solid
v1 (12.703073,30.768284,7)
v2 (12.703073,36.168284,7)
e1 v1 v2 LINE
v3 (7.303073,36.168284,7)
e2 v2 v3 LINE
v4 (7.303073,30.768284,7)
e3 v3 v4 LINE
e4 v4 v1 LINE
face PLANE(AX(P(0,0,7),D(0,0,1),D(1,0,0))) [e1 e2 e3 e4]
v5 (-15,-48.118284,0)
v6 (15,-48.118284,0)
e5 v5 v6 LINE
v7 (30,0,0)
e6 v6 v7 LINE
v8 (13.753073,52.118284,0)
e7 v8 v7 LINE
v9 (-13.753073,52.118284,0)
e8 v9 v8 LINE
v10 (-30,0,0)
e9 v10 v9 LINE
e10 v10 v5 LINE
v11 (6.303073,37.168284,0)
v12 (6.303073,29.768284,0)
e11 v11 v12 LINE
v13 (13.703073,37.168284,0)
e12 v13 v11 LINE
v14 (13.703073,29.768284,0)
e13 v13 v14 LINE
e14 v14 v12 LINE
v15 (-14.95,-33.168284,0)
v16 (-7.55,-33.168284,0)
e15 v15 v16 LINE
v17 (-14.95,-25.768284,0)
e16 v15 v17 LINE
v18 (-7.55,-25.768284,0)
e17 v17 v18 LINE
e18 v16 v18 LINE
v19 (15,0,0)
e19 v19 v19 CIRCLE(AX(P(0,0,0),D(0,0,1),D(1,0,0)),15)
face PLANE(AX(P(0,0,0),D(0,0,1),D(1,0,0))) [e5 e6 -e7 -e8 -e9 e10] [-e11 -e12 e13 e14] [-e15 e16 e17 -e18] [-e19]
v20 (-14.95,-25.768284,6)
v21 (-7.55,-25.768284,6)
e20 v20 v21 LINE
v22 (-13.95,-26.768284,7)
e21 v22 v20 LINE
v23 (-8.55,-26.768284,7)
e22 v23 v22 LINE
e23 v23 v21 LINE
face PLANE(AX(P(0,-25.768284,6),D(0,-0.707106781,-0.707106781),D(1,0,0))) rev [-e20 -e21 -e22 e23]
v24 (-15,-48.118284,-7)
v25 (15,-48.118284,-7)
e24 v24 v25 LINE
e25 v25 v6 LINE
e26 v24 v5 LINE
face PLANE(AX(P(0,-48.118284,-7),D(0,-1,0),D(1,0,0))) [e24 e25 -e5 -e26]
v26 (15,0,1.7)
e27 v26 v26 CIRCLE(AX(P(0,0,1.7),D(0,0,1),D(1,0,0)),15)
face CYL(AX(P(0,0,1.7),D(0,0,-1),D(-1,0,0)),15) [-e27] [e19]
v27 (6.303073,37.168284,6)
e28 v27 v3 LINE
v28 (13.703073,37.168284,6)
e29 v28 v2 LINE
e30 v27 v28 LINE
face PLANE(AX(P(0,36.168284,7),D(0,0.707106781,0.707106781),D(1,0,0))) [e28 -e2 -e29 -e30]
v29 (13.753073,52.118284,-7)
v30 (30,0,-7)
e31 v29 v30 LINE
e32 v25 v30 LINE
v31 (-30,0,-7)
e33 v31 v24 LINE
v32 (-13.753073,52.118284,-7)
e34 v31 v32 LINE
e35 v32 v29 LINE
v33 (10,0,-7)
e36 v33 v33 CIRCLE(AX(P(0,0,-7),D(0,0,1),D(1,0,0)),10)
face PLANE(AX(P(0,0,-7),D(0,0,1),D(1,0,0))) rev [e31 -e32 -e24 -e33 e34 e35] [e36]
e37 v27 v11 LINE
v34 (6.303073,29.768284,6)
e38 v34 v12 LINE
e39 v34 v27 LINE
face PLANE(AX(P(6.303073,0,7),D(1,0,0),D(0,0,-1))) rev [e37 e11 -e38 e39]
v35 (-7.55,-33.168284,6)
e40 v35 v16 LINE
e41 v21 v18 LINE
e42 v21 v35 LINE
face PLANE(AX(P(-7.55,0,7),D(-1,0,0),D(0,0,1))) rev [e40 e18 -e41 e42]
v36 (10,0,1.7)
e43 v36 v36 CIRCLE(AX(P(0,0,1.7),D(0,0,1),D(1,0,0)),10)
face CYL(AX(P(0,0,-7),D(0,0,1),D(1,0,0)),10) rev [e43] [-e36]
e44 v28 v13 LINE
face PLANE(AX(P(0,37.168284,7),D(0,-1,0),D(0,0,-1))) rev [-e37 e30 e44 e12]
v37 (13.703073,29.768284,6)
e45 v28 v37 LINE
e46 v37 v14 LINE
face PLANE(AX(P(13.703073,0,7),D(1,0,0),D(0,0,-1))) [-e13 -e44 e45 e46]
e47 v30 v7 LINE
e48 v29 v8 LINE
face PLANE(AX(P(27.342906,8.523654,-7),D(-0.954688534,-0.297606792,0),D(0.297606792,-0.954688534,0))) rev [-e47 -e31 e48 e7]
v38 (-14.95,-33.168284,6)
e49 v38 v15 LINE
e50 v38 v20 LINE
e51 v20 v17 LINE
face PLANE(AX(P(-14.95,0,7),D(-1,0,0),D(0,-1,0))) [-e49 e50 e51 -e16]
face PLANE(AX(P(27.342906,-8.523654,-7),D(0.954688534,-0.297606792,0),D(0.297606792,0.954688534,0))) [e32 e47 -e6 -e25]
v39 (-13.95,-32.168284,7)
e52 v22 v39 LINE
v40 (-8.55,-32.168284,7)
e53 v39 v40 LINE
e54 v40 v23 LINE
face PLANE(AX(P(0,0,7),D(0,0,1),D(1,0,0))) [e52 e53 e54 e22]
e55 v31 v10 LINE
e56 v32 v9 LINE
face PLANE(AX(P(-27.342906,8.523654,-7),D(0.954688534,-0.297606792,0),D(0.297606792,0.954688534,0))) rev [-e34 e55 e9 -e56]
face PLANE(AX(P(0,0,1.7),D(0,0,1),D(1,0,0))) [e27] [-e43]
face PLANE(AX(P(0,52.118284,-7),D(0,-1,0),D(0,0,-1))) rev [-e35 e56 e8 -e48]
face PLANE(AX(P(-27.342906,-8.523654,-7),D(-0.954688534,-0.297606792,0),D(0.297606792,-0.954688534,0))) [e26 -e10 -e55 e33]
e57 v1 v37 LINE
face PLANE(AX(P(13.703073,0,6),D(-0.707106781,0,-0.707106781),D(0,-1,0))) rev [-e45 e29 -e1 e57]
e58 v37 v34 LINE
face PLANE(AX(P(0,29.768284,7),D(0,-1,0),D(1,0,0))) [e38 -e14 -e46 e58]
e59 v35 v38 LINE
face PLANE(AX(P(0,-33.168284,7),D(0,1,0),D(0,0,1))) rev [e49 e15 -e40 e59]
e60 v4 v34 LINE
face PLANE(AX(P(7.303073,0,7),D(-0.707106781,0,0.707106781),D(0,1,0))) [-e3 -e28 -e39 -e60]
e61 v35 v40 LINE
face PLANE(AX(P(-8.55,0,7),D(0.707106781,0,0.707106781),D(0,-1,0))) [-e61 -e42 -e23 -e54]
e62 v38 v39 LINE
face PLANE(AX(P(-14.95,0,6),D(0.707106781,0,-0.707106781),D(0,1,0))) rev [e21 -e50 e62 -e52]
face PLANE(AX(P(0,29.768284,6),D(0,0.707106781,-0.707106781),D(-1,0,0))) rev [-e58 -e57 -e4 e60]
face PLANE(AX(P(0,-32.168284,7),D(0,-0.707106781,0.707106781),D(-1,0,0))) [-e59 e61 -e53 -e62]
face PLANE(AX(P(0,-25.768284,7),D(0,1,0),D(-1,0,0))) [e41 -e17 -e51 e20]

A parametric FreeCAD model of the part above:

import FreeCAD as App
import Part
import Sketcher
Q = App.Units.Quantity


def edges_at(feature, points):
    """Names of the edges that pass closest to the given points."""
    edges = feature.Shape.Edges
    near = lambda p: min(range(len(edges)), key=lambda i: edges[i].distToShape(Part.Vertex(*p))[0])
    return sorted({f"Edge{near(p) + 1}" for p in points})

doc = App.newDocument("Part")
body = doc.addObject("PartDesign::Body", "Body")

# Sketch on XY plane
sketch1 = doc.addObject("Sketcher::SketchObject", "Sketch")
body.addObject(sketch1)
sketch1.AttachmentSupport = (doc.XY_Plane, [""])
sketch1.MapMode = "FlatFace"
sketch1.addGeometry(Part.LineSegment(App.Vector(-30, 0, 0), App.Vector(-15, -48, 0)), False)
sketch1.addGeometry(Part.LineSegment(App.Vector(-15, -48, 0), App.Vector(15, -48, 0)), False)
sketch1.addGeometry(Part.LineSegment(App.Vector(15, -48, 0), App.Vector(30, 0, 0)), False)
sketch1.addGeometry(Part.LineSegment(App.Vector(30, 0, 0), App.Vector(14, 52, 0)), False)
sketch1.addGeometry(Part.LineSegment(App.Vector(14, 52, 0), App.Vector(-14, 52, 0)), False)
sketch1.addGeometry(Part.LineSegment(App.Vector(-14, 52, 0), App.Vector(-30, 0, 0)), False)
sketch1.addGeometry(Part.Circle(App.Vector(0, 0, 0), App.Vector(0, 0, 1), 10), False)
sketch1.addConstraint(Sketcher.Constraint("Coincident", 0, 2, 1, 1))
sketch1.addConstraint(Sketcher.Constraint("Coincident", 1, 2, 2, 1))
sketch1.addConstraint(Sketcher.Constraint("Coincident", 2, 2, 3, 1))
sketch1.addConstraint(Sketcher.Constraint("Coincident", 3, 2, 4, 1))
sketch1.addConstraint(Sketcher.Constraint("Coincident", 4, 2, 5, 1))
sketch1.addConstraint(Sketcher.Constraint("Coincident", 5, 2, 0, 1))
sketch1.addConstraint(Sketcher.Constraint("Horizontal", 1))
sketch1.addConstraint(Sketcher.Constraint("Horizontal", 4))
sketch1.addConstraint(Sketcher.Constraint("Coincident", 6, 3, -1, 1))
sketch1.addConstraint(Sketcher.Constraint("Symmetric", 2, 2, 5, 2, -1, 1))
sketch1.addConstraint(Sketcher.Constraint("PointOnObject", 2, 2, -1))
sketch1.addConstraint(Sketcher.Constraint("Parallel", 0, 3))
sketch1.addConstraint(Sketcher.Constraint("Parallel", 2, 5))
sketch1.addConstraint(Sketcher.Constraint("Equal", 0, 2))
sketch1.addConstraint(Sketcher.Constraint("Diameter", 6, Q("20 mm")))
sketch1.addConstraint(Sketcher.Constraint("DistanceX", 1, 1, 1, 2, Q("30 mm")))
sketch1.addConstraint(Sketcher.Constraint("DistanceX", -1, 1, 2, 2, Q("30 mm")))
sketch1.addConstraint(Sketcher.Constraint("DistanceX", 4, 2, 4, 1, Q("27.506145 mm")))
sketch1.addConstraint(Sketcher.Constraint("Distance", 0, Q("50.402076 mm")))
pad1 = doc.addObject("PartDesign::Pad", "Pad")
body.addObject(pad1)
pad1.Profile = sketch1
pad1.Length = 7
pad1.Reversed = True

# Sketch on XY plane
sketch2 = doc.addObject("Sketcher::SketchObject", "Sketch001")
body.addObject(sketch2)
sketch2.AttachmentSupport = (doc.XY_Plane, [""])
sketch2.MapMode = "FlatFace"
sketch2.addGeometry(Part.LineSegment(App.Vector(-15, -26, 0), App.Vector(-15, -33, 0)), False)
sketch2.addGeometry(Part.LineSegment(App.Vector(-15, -33, 0), App.Vector(-8, -33, 0)), False)
sketch2.addGeometry(Part.LineSegment(App.Vector(-8, -33, 0), App.Vector(-8, -26, 0)), False)
sketch2.addGeometry(Part.LineSegment(App.Vector(-8, -26, 0), App.Vector(-15, -26, 0)), False)
sketch2.addGeometry(Part.LineSegment(App.Vector(6, 37, 0), App.Vector(6, 30, 0)), False)
sketch2.addGeometry(Part.LineSegment(App.Vector(6, 30, 0), App.Vector(14, 30, 0)), False)
sketch2.addGeometry(Part.LineSegment(App.Vector(14, 30, 0), App.Vector(14, 37, 0)), False)
sketch2.addGeometry(Part.LineSegment(App.Vector(14, 37, 0), App.Vector(6, 37, 0)), False)
sketch2.addConstraint(Sketcher.Constraint("Coincident", 0, 2, 1, 1))
sketch2.addConstraint(Sketcher.Constraint("Coincident", 1, 2, 2, 1))
sketch2.addConstraint(Sketcher.Constraint("Coincident", 2, 2, 3, 1))
sketch2.addConstraint(Sketcher.Constraint("Coincident", 3, 2, 0, 1))
sketch2.addConstraint(Sketcher.Constraint("Coincident", 4, 2, 5, 1))
sketch2.addConstraint(Sketcher.Constraint("Coincident", 5, 2, 6, 1))
sketch2.addConstraint(Sketcher.Constraint("Coincident", 6, 2, 7, 1))
sketch2.addConstraint(Sketcher.Constraint("Coincident", 7, 2, 4, 1))
sketch2.addConstraint(Sketcher.Constraint("Vertical", 0))
sketch2.addConstraint(Sketcher.Constraint("Horizontal", 1))
sketch2.addConstraint(Sketcher.Constraint("Vertical", 2))
sketch2.addConstraint(Sketcher.Constraint("Horizontal", 3))
sketch2.addConstraint(Sketcher.Constraint("Vertical", 4))
sketch2.addConstraint(Sketcher.Constraint("Horizontal", 5))
sketch2.addConstraint(Sketcher.Constraint("Vertical", 6))
sketch2.addConstraint(Sketcher.Constraint("Horizontal", 7))
sketch2.addConstraint(Sketcher.Constraint("Equal", 3, 5))
sketch2.addConstraint(Sketcher.Constraint("Equal", 7, 0))
sketch2.addConstraint(Sketcher.Constraint("Equal", 2, 4))
sketch2.addConstraint(Sketcher.Constraint("DistanceX", 1, 1, 1, 2, Q("7.4 mm")))
sketch2.addConstraint(Sketcher.Constraint("DistanceX", 0, 2, -1, 1, Q("14.95 mm")))
sketch2.addConstraint(Sketcher.Constraint("DistanceY", 0, 2, -1, 1, Q("33.168284 mm")))
sketch2.addConstraint(Sketcher.Constraint("DistanceX", -1, 1, 4, 2, Q("6.303073 mm")))
sketch2.addConstraint(Sketcher.Constraint("DistanceY", -1, 1, 4, 2, Q("29.768284 mm")))
pad2 = doc.addObject("PartDesign::Pad", "Pad001")
body.addObject(pad2)
pad2.Profile = sketch2
pad2.Length = 7
doc.recompute()

chamfer = doc.addObject("PartDesign::Chamfer", "Chamfer")
body.addObject(chamfer)
chamfer.Base = (pad2, edges_at(pad2, [
    (-11.25, -25.768, 7),
    (-14.95, -29.468, 7),
    (-11.25, -33.168, 7),
    (-7.55, -29.468, 7),
    (10.003, 29.768, 7),
    (13.703, 33.468, 7),
    (10.003, 37.168, 7),
    (6.303, 33.468, 7),
]))
chamfer.Size = 1

# Sketch on XY plane
sketch3 = doc.addObject("Sketcher::SketchObject", "Sketch002")
body.addObject(sketch3)
sketch3.AttachmentSupport = (doc.XY_Plane, [""])
sketch3.MapMode = "FlatFace"
sketch3.AttachmentOffset = App.Placement(App.Vector(0, 0, 1.7), App.Rotation())
sketch3.addGeometry(Part.Circle(App.Vector(0, 0, 0), App.Vector(0, 0, 1), 15), False)
sketch3.addGeometry(Part.Circle(App.Vector(0, 0, 0), App.Vector(0, 0, 1), 10), False)
sketch3.addConstraint(Sketcher.Constraint("Coincident", 0, 3, -1, 1))
sketch3.addConstraint(Sketcher.Constraint("Coincident", 1, 3, -1, 1))
sketch3.addConstraint(Sketcher.Constraint("Diameter", 0, Q("30 mm")))
sketch3.addConstraint(Sketcher.Constraint("Diameter", 1, Q("20 mm")))
pad3 = doc.addObject("PartDesign::Pad", "Pad002")
body.addObject(pad3)
pad3.Profile = sketch3
pad3.Length = 1.7
pad3.Reversed = True

doc.recompute()
